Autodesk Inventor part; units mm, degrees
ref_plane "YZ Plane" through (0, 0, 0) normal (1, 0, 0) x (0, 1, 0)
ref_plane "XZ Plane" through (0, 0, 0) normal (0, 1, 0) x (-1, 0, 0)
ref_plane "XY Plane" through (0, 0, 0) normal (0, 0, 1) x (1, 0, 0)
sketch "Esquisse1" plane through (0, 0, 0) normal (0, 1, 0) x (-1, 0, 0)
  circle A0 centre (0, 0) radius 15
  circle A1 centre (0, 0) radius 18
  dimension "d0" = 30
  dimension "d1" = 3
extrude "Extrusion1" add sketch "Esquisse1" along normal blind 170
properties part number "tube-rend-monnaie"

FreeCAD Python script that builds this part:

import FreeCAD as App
import Part
import Sketcher

V = App.Vector
Q = App.Units.Quantity

doc = App.newDocument("Part")
params = doc.addObject("Spreadsheet::Sheet", "Params")
for row, (alias, value) in enumerate([
    ("sketch1_diameter", "30 mm"),
    ("sketch1_diameter2", "36 mm"),
    ("pad1_length", "170 mm"),
], start=1):
    params.set(f"A{row}", alias)
    params.set(f"B{row}", "=" + value)
    params.setAlias(f"B{row}", alias)

body = doc.addObject("PartDesign::Body", "Body")

# Sketch on XZ plane
sketch1 = body.newObject("Sketcher::SketchObject", "Sketch")
sketch1.AttachmentSupport = (doc.getObject("XZ_Plane"), [""])
sketch1.MapMode = "FlatFace"
sketch1.addGeometry(Part.Circle(V(0, 0, 0), V(0, 0, 1), 18), False)
sketch1.addGeometry(Part.Circle(V(0, 0, 0), V(0, 0, 1), 15), False)
sketch1.addConstraint(Sketcher.Constraint("Coincident", 0, 3, -1, 1))
sketch1.addConstraint(Sketcher.Constraint("Coincident", 1, 3, -1, 1))
sketch1.addConstraint(Sketcher.Constraint("Diameter", 1, Q("30 mm")))
sketch1.addConstraint(Sketcher.Constraint("Diameter", 0, Q("36 mm")))
sketch1.setExpression("Constraints[2]", "Params.sketch1_diameter")
sketch1.setExpression("Constraints[3]", "Params.sketch1_diameter2")
pad1 = body.newObject("PartDesign::Pad", "Pad")
pad1.Profile = sketch1
pad1.setExpression("Length", "Params.pad1_length")
pad1.Reversed = True

doc.recompute()
